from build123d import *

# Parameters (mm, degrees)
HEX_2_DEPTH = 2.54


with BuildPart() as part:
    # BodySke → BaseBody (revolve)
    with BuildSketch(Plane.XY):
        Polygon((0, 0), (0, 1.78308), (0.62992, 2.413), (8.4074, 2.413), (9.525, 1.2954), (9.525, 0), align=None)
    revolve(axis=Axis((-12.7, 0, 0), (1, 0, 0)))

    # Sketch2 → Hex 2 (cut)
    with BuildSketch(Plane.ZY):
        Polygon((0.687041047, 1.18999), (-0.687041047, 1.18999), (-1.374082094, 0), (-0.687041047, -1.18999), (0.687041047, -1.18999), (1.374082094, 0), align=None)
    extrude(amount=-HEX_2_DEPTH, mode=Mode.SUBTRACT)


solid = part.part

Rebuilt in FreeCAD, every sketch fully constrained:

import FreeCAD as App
import Part
import Sketcher
from FreeCAD import Vector
Q = App.Units.Quantity


def add_polygon(sketch, points):
    """Adds a closed chain of lines whose ends are joined by coincident constraints."""
    first, n = sketch.GeometryCount, len(points)
    for a, b in zip(points, points[1:] + points[:1]):
        sketch.addGeometry(Part.LineSegment(App.Vector(*a, 0), App.Vector(*b, 0)), False)
    for i in range(n):
        sketch.addConstraint(Sketcher.Constraint("Coincident", first + i, 2, first + (i + 1) % n, 1))

doc = App.newDocument("Part")
body = doc.addObject("PartDesign::Body", "Body")

# Sketch on XY plane
sketch1 = doc.addObject("Sketcher::SketchObject", "Sketch")
body.addObject(sketch1)
sketch1.AttachmentSupport = (doc.XY_Plane, [""])
sketch1.MapMode = "FlatFace"
add_polygon(sketch1, [(0, 1.8), (0, 0), (9.5, 0), (9.5, 1.3), (8.4, 2.4), (0.6, 2.4)])  # lines 0-5
sketch1.addConstraint([
    Sketcher.Constraint("Vertical", 0),
    Sketcher.Constraint("Horizontal", 1),
    Sketcher.Constraint("Vertical", 2),
    Sketcher.Constraint("Horizontal", 4),
    Sketcher.Constraint("Coincident", 0, 2, -1, 1),
    Sketcher.Constraint("Perpendicular", 3, 5),
    Sketcher.Constraint("Angle", 3, Q("135 deg")),
    Sketcher.Constraint("DistanceX", 1, 1, 1, 2, Q("0.375 in")),
    Sketcher.Constraint("DistanceY", 2, 1, 2, 2, Q("0.051 in")),
    Sketcher.Constraint("DistanceX", 4, 2, 4, 1, Q("0.3062 in")),
    Sketcher.Constraint("DistanceY", 0, 2, 0, 1, Q("0.0702 in")),
])
revolution = doc.addObject("PartDesign::Revolution", "Revolution")
body.addObject(revolution)
revolution.Profile = sketch1
revolution.ReferenceAxis = (sketch1, ["H_Axis"])
revolution.Angle = 360

# Sketch on YZ plane
sketch2 = doc.addObject("Sketcher::SketchObject", "Sketch001")
body.addObject(sketch2)
sketch2.AttachmentSupport = (doc.YZ_Plane, [""])
sketch2.MapMode = "FlatFace"
add_polygon(sketch2, [(1.2, 0.7), (1.2, -0.7), (0, -1.4), (-1.2, -0.7), (-1.2, 0.7), (0, 1.4)])  # lines 0-5
sketch2.addConstraint([
    Sketcher.Constraint("Vertical", 0),
    Sketcher.Constraint("Vertical", 3),
    Sketcher.Constraint("Symmetric", 0, 2, 3, 2, -1, 1),
    Sketcher.Constraint("Symmetric", 1, 2, 4, 2, -1, 1),
    Sketcher.Constraint("PointOnObject", 1, 2, -2),
    Sketcher.Constraint("Parallel", 2, 5),
    Sketcher.Constraint("Horizontal", 0, 2, 2, 2),
    Sketcher.Constraint("Angle", 1, Q("-150 deg")),
    Sketcher.Constraint("DistanceX", 2, 2, 0, 2, Q("0.0937 in")),
    Sketcher.Constraint("DistanceY", 0, 2, 0, 1, 1.374082),
])
pocket1 = doc.addObject("PartDesign::Pocket", "Pocket")
body.addObject(pocket1)
pocket1.Profile = sketch2
pocket1.Length = Q("0.1 in")
pocket1.Reversed = True

doc.recompute()
